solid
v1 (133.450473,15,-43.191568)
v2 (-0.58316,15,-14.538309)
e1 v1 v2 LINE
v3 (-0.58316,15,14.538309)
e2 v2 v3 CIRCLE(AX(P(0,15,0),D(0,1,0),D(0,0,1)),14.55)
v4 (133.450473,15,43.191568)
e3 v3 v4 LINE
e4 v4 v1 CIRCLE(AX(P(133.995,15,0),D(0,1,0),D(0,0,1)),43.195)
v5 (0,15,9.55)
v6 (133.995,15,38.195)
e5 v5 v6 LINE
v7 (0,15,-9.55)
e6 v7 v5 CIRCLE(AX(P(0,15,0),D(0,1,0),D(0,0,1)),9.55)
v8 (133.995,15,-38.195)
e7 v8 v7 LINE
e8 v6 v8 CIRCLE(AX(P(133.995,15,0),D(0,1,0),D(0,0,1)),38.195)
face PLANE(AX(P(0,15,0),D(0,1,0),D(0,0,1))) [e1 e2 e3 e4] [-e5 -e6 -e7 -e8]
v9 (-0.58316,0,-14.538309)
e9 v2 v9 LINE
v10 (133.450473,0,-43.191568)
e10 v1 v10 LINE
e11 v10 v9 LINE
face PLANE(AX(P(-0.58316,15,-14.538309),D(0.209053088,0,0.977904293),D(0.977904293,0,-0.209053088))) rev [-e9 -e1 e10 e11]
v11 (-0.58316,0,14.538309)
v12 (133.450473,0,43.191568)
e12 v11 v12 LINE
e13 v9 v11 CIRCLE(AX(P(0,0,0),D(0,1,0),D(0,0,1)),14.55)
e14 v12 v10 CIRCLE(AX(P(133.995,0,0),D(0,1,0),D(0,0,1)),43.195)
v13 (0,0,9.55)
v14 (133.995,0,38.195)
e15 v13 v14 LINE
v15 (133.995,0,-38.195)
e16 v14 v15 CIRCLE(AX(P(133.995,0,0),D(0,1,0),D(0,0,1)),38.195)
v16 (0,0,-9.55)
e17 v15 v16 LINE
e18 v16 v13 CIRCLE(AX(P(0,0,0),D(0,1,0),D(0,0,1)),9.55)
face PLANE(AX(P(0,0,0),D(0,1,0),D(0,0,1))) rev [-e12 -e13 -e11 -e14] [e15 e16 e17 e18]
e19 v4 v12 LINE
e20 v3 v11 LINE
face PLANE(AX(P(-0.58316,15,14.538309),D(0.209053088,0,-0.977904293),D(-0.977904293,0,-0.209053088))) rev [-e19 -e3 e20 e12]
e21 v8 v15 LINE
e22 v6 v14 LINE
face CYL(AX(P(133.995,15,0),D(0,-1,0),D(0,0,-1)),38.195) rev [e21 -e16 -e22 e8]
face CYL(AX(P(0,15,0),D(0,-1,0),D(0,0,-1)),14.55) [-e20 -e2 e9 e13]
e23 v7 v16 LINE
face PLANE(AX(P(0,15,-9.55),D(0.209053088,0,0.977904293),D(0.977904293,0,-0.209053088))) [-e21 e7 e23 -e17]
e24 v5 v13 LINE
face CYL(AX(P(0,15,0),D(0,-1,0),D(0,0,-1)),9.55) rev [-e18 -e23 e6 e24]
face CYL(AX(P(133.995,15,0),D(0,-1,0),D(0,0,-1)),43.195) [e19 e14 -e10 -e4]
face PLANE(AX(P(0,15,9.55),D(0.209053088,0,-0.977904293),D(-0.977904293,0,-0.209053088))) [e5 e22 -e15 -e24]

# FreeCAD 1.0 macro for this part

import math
import FreeCAD as App
import Part
import Sketcher

V = App.Vector
Q = App.Units.Quantity

doc = App.newDocument("Part")
body = doc.addObject("PartDesign::Body", "Body")

# Sketch on XZ plane
sketch1 = body.newObject("Sketcher::SketchObject", "Sketch")
sketch1.AttachmentSupport = (doc.getObject("XZ_Plane"), [""])
sketch1.MapMode = "FlatFace"
sketch1.addGeometry(Part.LineSegment(V(-1, 15, 0), V(133, 43, 0)), False)
sketch1.addGeometry(Part.ArcOfCircle(Part.Circle(V(134, 0, 0), V(0, 0, 1), 43), math.radians(-91), math.radians(91)), False)
sketch1.addGeometry(Part.LineSegment(V(133, -43, 0), V(-1, -15, 0)), False)
sketch1.addGeometry(Part.ArcOfCircle(Part.Circle(V(0, 0, 0), V(0, 0, 1), 15), math.radians(92), math.radians(268)), False)
sketch1.addGeometry(Part.ArcOfCircle(Part.Circle(V(0, 0, 0), V(0, 0, 1), 10), math.radians(90), math.radians(270)), False)
sketch1.addGeometry(Part.LineSegment(V(0, -10, 0), V(134, -38, 0)), False)
sketch1.addGeometry(Part.ArcOfCircle(Part.Circle(V(134, 0, 0), V(0, 0, 1), 38), math.radians(-90), math.radians(90)), False)
sketch1.addGeometry(Part.LineSegment(V(134, 38, 0), V(0, 10, 0)), False)
sketch1.addConstraint(Sketcher.Constraint("Coincident", 0, 2, 1, 2))
sketch1.addConstraint(Sketcher.Constraint("Coincident", 1, 1, 2, 1))
sketch1.addConstraint(Sketcher.Constraint("Coincident", 2, 2, 3, 2))
sketch1.addConstraint(Sketcher.Constraint("Coincident", 3, 1, 0, 1))
sketch1.addConstraint(Sketcher.Constraint("Coincident", 4, 2, 5, 1))
sketch1.addConstraint(Sketcher.Constraint("Coincident", 5, 2, 6, 1))
sketch1.addConstraint(Sketcher.Constraint("Coincident", 6, 2, 7, 1))
sketch1.addConstraint(Sketcher.Constraint("Coincident", 7, 2, 4, 1))
sketch1.addConstraint(Sketcher.Constraint("Coincident", 3, 3, -1, 1))
sketch1.addConstraint(Sketcher.Constraint("Coincident", 4, 3, -1, 1))
sketch1.addConstraint(Sketcher.Constraint("Coincident", 6, 3, 1, 3))
sketch1.addConstraint(Sketcher.Constraint("Symmetric", 0, 2, 1, 1, -1))
sketch1.addConstraint(Sketcher.Constraint("PointOnObject", 4, 2, -2))
sketch1.addConstraint(Sketcher.Constraint("PointOnObject", 7, 2, -2))
sketch1.addConstraint(Sketcher.Constraint("Parallel", 2, 5))
sketch1.addConstraint(Sketcher.Constraint("Parallel", 0, 7))
sketch1.addConstraint(Sketcher.Constraint("Vertical", 2, 2, 3, 1))
sketch1.addConstraint(Sketcher.Constraint("Vertical", 6, 3, 5, 2))
sketch1.addConstraint(Sketcher.Constraint("Radius", 3, Q("14.55 mm")))
sketch1.addConstraint(Sketcher.Constraint("Radius", 4, Q("9.55 mm")))
sketch1.addConstraint(Sketcher.Constraint("Radius", 1, Q("43.195 mm")))
sketch1.addConstraint(Sketcher.Constraint("Radius", 6, Q("38.195 mm")))
sketch1.addConstraint(Sketcher.Constraint("DistanceX", -1, 1, 1, 3, Q("133.995 mm")))
sketch1.addConstraint(Sketcher.Constraint("DistanceX", 2, 2, -1, 1, Q("0.58316 mm")))
pad1 = body.newObject("PartDesign::Pad", "Pad")
pad1.Profile = sketch1
pad1.Length = 15
pad1.Reversed = True

doc.recompute()
